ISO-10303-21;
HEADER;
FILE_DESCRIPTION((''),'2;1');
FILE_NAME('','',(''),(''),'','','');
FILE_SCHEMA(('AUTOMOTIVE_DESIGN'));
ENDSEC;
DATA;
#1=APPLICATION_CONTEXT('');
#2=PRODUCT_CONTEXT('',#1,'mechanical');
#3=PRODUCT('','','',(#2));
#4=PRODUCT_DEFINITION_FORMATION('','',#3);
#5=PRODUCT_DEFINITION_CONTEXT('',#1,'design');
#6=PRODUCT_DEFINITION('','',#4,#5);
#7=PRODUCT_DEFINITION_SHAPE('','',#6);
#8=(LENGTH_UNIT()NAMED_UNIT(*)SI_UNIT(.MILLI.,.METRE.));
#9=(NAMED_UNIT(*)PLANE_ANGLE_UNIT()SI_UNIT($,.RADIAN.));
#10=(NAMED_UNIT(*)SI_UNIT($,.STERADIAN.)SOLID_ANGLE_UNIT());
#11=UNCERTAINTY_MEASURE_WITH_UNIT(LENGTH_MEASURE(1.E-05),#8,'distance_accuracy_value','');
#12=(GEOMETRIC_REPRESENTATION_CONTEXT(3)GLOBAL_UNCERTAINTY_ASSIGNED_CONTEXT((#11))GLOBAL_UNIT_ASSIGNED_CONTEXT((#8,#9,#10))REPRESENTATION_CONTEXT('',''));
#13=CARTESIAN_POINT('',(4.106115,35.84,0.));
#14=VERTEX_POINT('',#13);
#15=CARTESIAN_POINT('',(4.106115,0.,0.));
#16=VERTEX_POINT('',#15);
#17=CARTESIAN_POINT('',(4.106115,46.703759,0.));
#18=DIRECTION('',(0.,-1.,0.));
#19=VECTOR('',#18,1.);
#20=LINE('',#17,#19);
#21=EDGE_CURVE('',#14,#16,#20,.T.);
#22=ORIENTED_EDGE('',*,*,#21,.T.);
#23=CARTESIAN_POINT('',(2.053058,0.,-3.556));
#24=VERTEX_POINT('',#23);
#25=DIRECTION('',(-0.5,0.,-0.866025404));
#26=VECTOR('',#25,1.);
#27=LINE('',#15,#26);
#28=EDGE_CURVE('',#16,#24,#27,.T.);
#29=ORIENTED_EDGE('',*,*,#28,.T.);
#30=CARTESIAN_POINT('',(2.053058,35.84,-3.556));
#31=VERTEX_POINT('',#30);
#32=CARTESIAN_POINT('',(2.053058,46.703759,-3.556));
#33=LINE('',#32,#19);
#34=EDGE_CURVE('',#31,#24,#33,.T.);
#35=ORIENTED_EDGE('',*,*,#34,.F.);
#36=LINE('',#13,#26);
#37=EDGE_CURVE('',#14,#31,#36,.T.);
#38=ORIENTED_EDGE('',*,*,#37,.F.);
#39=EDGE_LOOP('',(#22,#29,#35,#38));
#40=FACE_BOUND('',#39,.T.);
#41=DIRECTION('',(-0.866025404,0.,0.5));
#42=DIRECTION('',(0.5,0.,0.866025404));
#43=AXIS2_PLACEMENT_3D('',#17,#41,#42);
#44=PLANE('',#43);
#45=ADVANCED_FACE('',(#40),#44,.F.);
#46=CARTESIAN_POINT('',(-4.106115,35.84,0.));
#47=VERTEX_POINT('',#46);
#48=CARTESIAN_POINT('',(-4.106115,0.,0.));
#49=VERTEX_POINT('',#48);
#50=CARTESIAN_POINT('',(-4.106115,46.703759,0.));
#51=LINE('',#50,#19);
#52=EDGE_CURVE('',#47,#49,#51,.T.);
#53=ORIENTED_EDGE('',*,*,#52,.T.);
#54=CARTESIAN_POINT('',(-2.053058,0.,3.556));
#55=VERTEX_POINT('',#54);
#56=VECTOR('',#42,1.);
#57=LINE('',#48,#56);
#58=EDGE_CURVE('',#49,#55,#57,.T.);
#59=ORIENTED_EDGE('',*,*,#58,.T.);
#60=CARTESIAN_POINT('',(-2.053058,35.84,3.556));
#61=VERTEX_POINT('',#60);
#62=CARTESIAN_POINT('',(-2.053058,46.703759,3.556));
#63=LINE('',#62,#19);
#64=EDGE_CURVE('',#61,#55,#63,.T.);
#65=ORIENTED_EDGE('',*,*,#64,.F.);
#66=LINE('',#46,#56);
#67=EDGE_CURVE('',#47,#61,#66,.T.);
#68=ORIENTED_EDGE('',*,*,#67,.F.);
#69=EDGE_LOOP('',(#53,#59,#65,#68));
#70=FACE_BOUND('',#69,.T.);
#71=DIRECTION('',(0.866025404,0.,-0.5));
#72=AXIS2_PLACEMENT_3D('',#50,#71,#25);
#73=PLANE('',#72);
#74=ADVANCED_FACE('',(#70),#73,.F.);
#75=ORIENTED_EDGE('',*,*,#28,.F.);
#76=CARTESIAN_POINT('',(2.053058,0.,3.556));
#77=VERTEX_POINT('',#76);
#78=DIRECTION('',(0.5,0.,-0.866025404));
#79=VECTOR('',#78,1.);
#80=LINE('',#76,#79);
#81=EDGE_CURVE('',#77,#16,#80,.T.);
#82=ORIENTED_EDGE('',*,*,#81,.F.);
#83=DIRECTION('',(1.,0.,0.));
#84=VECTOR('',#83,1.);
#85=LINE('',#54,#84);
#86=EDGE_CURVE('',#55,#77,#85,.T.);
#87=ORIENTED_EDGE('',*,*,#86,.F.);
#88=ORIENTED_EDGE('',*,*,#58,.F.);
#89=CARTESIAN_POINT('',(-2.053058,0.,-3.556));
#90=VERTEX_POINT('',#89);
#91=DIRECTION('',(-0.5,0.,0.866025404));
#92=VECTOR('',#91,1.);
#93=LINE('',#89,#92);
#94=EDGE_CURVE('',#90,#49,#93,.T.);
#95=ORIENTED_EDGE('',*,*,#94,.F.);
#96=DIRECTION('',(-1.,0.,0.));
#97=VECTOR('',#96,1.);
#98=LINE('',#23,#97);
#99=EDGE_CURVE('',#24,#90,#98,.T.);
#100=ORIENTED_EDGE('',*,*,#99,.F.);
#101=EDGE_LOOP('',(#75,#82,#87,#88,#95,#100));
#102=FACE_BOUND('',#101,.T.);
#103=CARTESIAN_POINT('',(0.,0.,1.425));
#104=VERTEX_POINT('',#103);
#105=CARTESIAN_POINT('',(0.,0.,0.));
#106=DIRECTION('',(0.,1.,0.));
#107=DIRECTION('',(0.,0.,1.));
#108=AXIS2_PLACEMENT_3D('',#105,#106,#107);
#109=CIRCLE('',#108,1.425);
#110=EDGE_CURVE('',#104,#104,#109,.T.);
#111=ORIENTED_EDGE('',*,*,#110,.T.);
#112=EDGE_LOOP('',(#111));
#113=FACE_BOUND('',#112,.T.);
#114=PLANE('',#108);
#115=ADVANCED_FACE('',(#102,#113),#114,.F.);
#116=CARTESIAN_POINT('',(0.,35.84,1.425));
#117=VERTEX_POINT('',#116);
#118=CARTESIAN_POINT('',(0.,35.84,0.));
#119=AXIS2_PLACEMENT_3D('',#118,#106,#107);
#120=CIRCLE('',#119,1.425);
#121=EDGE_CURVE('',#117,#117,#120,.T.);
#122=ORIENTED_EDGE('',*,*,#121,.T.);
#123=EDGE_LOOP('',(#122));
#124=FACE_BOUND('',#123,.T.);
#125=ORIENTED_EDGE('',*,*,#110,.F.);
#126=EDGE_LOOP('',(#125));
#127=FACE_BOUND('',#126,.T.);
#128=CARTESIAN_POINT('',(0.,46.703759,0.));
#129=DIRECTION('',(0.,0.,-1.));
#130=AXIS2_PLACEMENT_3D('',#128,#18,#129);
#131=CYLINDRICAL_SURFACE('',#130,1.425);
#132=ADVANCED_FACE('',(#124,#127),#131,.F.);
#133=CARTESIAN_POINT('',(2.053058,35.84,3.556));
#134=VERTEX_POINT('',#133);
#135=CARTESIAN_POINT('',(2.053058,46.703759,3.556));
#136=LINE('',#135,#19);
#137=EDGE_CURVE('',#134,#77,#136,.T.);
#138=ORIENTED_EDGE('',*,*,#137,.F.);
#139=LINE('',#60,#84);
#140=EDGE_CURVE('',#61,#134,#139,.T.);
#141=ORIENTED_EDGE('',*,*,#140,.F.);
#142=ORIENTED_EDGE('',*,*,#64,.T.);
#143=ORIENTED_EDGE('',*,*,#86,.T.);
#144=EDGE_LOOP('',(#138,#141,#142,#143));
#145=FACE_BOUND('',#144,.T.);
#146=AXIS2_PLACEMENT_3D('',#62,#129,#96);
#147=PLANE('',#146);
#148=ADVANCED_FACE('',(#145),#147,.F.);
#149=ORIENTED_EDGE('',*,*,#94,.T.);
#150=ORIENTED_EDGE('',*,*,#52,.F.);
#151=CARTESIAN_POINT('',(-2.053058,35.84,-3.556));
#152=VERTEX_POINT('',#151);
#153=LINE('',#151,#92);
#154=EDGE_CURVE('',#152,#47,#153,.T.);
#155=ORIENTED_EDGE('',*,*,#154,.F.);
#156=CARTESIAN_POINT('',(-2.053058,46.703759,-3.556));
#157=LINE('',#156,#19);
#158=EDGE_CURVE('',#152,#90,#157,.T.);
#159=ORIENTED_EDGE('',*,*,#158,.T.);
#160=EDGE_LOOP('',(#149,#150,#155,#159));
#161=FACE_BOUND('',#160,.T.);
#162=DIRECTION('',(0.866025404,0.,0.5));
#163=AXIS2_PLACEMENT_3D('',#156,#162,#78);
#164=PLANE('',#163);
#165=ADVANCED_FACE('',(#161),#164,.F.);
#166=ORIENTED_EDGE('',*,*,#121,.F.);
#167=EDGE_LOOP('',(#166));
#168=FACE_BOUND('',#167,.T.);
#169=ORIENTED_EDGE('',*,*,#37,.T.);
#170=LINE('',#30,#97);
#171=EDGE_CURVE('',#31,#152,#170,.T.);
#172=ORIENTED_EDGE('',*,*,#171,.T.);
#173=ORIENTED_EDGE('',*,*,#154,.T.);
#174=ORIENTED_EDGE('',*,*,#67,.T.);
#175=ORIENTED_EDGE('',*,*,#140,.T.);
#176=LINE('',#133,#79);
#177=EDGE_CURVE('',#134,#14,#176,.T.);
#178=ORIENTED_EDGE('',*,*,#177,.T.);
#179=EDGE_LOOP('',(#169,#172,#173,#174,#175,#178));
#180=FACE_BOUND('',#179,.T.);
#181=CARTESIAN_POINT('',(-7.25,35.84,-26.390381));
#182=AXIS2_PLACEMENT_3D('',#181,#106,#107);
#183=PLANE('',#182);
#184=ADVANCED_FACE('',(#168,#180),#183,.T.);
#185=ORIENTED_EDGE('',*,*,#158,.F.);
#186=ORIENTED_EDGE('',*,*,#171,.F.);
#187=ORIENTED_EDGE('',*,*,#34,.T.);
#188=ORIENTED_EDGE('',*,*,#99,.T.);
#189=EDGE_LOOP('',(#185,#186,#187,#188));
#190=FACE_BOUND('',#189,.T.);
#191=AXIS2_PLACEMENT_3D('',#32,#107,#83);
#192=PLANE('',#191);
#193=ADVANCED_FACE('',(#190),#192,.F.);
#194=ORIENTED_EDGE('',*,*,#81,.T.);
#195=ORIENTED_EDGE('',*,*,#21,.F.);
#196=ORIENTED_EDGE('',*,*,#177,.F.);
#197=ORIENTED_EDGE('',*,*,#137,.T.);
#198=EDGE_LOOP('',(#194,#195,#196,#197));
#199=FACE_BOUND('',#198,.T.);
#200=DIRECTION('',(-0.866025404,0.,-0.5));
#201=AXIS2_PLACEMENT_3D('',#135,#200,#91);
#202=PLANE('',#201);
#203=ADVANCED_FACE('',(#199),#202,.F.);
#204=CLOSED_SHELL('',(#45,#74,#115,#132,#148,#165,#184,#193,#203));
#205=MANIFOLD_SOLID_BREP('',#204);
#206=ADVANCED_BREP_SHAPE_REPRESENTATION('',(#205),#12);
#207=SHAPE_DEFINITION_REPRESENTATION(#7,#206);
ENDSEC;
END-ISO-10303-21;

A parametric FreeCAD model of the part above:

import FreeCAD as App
import Part
import Sketcher
Q = App.Units.Quantity


def add_polygon(sketch, points):
    """Adds a closed chain of lines whose ends are joined by coincident constraints."""
    first, n = sketch.GeometryCount, len(points)
    for a, b in zip(points, points[1:] + points[:1]):
        sketch.addGeometry(Part.LineSegment(App.Vector(*a, 0), App.Vector(*b, 0)), False)
    for i in range(n):
        sketch.addConstraint(Sketcher.Constraint("Coincident", first + i, 2, first + (i + 1) % n, 1))

doc = App.newDocument("Part")
body = doc.addObject("PartDesign::Body", "Body")

# Sketch on XZ plane
sketch1 = doc.addObject("Sketcher::SketchObject", "Sketch")
body.addObject(sketch1)
sketch1.AttachmentSupport = (doc.XZ_Plane, [""])
sketch1.MapMode = "FlatFace"
add_polygon(sketch1, [(4.1, 0), (2.1, -3.6), (-2.1, -3.6), (-4.1, 0), (-2.1, 3.6), (2.1, 3.6)])  # lines 0-5
sketch1.addGeometry(Part.Circle(App.Vector(0, 0, 0), App.Vector(0, 0, 1), 1.4), False)  # 6
sketch1.addConstraint([
    Sketcher.Constraint("Horizontal", 1),
    Sketcher.Constraint("Horizontal", 4),
    Sketcher.Constraint("Coincident", 6, 3, -1, 1),
    Sketcher.Constraint("Symmetric", 0, 2, 3, 2, -1, 1),
    Sketcher.Constraint("Symmetric", 2, 2, 5, 2, -1, 1),
    Sketcher.Constraint("PointOnObject", 2, 2, -1),
    Sketcher.Constraint("Parallel", 2, 5),
    Sketcher.Constraint("Vertical", 1, 2, 3, 2),
    Sketcher.Constraint("Diameter", 6, 2.85),
    Sketcher.Constraint("Angle", 0, Q("-120 deg")),
    Sketcher.Constraint("DistanceY", 0, 2, -1, 1, 3.556),
    Sketcher.Constraint("DistanceX", 1, 2, 1, 1, 4.106115),
])
pad1 = doc.addObject("PartDesign::Pad", "Pad")
body.addObject(pad1)
pad1.Profile = sketch1
pad1.Length = 35.84
pad1.Reversed = True

doc.recompute()
